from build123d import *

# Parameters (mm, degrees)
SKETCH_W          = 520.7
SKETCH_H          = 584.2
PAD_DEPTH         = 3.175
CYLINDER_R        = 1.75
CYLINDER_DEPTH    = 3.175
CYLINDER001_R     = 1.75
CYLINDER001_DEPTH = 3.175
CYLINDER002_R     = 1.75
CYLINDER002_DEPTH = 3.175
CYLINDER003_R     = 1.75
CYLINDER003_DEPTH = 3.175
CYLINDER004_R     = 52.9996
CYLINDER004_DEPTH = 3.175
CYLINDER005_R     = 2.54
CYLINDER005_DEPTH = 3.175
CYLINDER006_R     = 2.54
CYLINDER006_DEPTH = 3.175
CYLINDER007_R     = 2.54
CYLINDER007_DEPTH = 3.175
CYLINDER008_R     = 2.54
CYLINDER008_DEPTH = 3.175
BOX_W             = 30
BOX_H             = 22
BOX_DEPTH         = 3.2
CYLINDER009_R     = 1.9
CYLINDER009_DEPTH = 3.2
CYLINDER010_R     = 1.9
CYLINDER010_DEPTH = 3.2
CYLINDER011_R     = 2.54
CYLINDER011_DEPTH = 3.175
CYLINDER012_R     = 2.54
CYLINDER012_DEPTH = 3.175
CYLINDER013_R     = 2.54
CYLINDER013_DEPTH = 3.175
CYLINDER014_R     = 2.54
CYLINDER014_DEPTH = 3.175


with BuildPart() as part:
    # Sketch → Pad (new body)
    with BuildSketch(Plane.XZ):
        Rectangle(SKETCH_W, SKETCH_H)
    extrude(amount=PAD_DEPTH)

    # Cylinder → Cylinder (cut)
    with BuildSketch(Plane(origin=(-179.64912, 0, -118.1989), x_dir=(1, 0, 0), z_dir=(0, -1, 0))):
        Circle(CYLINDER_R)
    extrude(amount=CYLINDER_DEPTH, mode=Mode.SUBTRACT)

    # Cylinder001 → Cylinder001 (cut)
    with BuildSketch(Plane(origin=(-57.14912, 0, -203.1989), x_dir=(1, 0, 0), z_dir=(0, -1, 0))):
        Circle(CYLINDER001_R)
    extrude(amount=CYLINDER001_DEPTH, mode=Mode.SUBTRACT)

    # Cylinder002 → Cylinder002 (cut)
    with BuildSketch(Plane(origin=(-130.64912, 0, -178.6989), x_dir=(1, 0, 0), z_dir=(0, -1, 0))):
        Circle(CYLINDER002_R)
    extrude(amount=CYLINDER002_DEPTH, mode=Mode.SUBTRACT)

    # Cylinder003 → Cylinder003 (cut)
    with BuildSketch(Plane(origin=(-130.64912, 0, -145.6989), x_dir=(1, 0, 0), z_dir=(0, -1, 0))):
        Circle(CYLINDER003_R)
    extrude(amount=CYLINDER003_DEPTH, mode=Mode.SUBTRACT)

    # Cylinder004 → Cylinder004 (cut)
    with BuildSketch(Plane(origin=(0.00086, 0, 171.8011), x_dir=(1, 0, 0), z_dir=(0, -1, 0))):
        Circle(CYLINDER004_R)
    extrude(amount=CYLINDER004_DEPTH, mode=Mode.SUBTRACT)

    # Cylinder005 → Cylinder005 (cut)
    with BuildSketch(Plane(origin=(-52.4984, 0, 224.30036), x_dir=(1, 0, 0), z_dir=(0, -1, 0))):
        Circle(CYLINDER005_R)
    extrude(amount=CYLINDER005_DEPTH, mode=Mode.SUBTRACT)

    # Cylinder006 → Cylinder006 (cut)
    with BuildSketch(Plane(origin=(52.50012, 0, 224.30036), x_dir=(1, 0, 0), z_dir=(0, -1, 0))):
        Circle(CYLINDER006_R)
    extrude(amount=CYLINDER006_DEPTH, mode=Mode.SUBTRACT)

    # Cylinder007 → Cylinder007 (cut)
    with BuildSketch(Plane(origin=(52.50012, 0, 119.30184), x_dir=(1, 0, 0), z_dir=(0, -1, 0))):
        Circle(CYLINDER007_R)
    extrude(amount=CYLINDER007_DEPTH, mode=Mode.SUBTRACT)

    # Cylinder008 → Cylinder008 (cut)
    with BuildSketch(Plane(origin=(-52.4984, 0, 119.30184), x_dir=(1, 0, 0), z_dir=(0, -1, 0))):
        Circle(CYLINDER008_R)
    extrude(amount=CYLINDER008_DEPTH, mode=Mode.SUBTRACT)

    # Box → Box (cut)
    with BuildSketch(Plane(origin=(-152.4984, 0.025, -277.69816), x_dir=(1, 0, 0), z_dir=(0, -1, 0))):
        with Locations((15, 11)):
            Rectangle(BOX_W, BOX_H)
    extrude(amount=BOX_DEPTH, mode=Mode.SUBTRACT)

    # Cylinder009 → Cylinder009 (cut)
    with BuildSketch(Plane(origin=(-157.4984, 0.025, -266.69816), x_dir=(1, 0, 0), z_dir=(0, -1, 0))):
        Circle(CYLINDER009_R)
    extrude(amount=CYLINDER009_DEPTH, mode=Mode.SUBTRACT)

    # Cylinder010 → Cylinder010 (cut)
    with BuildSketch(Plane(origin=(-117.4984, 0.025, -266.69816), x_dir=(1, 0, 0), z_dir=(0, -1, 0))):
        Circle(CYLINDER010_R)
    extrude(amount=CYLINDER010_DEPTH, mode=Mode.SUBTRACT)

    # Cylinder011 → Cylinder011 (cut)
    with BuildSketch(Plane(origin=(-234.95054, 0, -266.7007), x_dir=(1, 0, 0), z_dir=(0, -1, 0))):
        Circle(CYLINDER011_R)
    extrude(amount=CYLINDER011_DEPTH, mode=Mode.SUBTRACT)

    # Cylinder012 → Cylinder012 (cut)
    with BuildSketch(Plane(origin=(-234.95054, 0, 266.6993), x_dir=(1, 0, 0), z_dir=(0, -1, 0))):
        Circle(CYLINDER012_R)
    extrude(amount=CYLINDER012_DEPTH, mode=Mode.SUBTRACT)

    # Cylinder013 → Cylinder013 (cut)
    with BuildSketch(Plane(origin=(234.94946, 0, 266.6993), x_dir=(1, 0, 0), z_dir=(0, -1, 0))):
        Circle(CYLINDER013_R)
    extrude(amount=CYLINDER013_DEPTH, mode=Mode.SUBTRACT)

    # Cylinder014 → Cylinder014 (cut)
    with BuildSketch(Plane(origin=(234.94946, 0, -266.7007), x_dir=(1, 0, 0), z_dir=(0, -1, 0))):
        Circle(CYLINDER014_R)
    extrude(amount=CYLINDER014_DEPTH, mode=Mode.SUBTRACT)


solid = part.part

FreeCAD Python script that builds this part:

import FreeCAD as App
import Part
import Sketcher
Q = App.Units.Quantity


def add_polygon(sketch, points):
    """Adds a closed chain of lines whose ends are joined by coincident constraints."""
    first, n = sketch.GeometryCount, len(points)
    for a, b in zip(points, points[1:] + points[:1]):
        sketch.addGeometry(Part.LineSegment(App.Vector(*a, 0), App.Vector(*b, 0)), False)
    for i in range(n):
        sketch.addConstraint(Sketcher.Constraint("Coincident", first + i, 2, first + (i + 1) % n, 1))

doc = App.newDocument("Part")
body = doc.addObject("PartDesign::Body", "Body")

# Sketch on XZ plane
sketch1 = body.newObject("Sketcher::SketchObject", "Sketch")
sketch1.AttachmentSupport = (doc.getObject("XZ_Plane"), [""])
sketch1.MapMode = "FlatFace"
add_polygon(sketch1, [(-260, 292), (-260, -292), (260, -292), (260, 292)])  # lines 0-3
sketch1.addConstraint(Sketcher.Constraint("Vertical", 0))
sketch1.addConstraint(Sketcher.Constraint("Horizontal", 1))
sketch1.addConstraint(Sketcher.Constraint("Vertical", 2))
sketch1.addConstraint(Sketcher.Constraint("Horizontal", 3))
sketch1.addConstraint(Sketcher.Constraint("Symmetric", 0, 2, 2, 2, -1, 1))
sketch1.addConstraint(Sketcher.Constraint("DistanceX", 1, 1, 1, 2, Q("520.7 mm")))
sketch1.addConstraint(Sketcher.Constraint("DistanceY", 0, 2, 0, 1, Q("584.2 mm")))
pad1 = body.newObject("PartDesign::Pad", "Pad")
pad1.Profile = sketch1
pad1.Length = 3.175

# Sketch on XZ plane
sketch2 = body.newObject("Sketcher::SketchObject", "Sketch001")
sketch2.AttachmentSupport = (doc.getObject("XZ_Plane"), [""])
sketch2.MapMode = "FlatFace"
sketch2.addGeometry(Part.Circle(App.Vector(-179.6, -118.2, 0), App.Vector(0, 0, 1), 1.8), False)
sketch2.addConstraint(Sketcher.Constraint("Diameter", 0, Q("3.5 mm")))
sketch2.addConstraint(Sketcher.Constraint("DistanceY", 0, 3, -1, 1, Q("118.1989 mm")))
sketch2.addConstraint(Sketcher.Constraint("DistanceX", 0, 3, -1, 1, Q("179.64912 mm")))
pocket1 = body.newObject("PartDesign::Pocket", "Pocket")
pocket1.Profile = sketch2
pocket1.Length = 3.175
pocket1.Reversed = True

# Sketch on XZ plane
sketch3 = body.newObject("Sketcher::SketchObject", "Sketch002")
sketch3.AttachmentSupport = (doc.getObject("XZ_Plane"), [""])
sketch3.MapMode = "FlatFace"
sketch3.addGeometry(Part.Circle(App.Vector(-57.1, -203.2, 0), App.Vector(0, 0, 1), 1.8), False)
sketch3.addConstraint(Sketcher.Constraint("Diameter", 0, Q("3.5 mm")))
sketch3.addConstraint(Sketcher.Constraint("DistanceY", 0, 3, -1, 1, Q("203.1989 mm")))
sketch3.addConstraint(Sketcher.Constraint("DistanceX", 0, 3, -1, 1, Q("57.14912 mm")))
pocket2 = body.newObject("PartDesign::Pocket", "Pocket001")
pocket2.Profile = sketch3
pocket2.Length = 3.175
pocket2.Reversed = True

# Sketch on XZ plane
sketch4 = body.newObject("Sketcher::SketchObject", "Sketch003")
sketch4.AttachmentSupport = (doc.getObject("XZ_Plane"), [""])
sketch4.MapMode = "FlatFace"
sketch4.addGeometry(Part.Circle(App.Vector(-130.6, -178.7, 0), App.Vector(0, 0, 1), 1.8), False)
sketch4.addConstraint(Sketcher.Constraint("Diameter", 0, Q("3.5 mm")))
sketch4.addConstraint(Sketcher.Constraint("DistanceY", 0, 3, -1, 1, Q("178.6989 mm")))
sketch4.addConstraint(Sketcher.Constraint("DistanceX", 0, 3, -1, 1, Q("130.64912 mm")))
pocket3 = body.newObject("PartDesign::Pocket", "Pocket002")
pocket3.Profile = sketch4
pocket3.Length = 3.175
pocket3.Reversed = True

# Sketch on XZ plane
sketch5 = body.newObject("Sketcher::SketchObject", "Sketch004")
sketch5.AttachmentSupport = (doc.getObject("XZ_Plane"), [""])
sketch5.MapMode = "FlatFace"
sketch5.addGeometry(Part.Circle(App.Vector(-130.6, -145.7, 0), App.Vector(0, 0, 1), 1.8), False)
sketch5.addConstraint(Sketcher.Constraint("Diameter", 0, Q("3.5 mm")))
sketch5.addConstraint(Sketcher.Constraint("DistanceY", 0, 3, -1, 1, Q("145.6989 mm")))
sketch5.addConstraint(Sketcher.Constraint("DistanceX", 0, 3, -1, 1, Q("130.64912 mm")))
pocket4 = body.newObject("PartDesign::Pocket", "Pocket003")
pocket4.Profile = sketch5
pocket4.Length = 3.175
pocket4.Reversed = True

# Sketch on XZ plane
sketch6 = body.newObject("Sketcher::SketchObject", "Sketch005")
sketch6.AttachmentSupport = (doc.getObject("XZ_Plane"), [""])
sketch6.MapMode = "FlatFace"
sketch6.addGeometry(Part.Circle(App.Vector(0, 172, 0), App.Vector(0, 0, 1), 53), False)
sketch6.addConstraint(Sketcher.Constraint("Diameter", 0, Q("105.9992 mm")))
sketch6.addConstraint(Sketcher.Constraint("DistanceY", -1, 1, 0, 3, Q("171.8011 mm")))
sketch6.addConstraint(Sketcher.Constraint("DistanceX", -1, 1, 0, 3, Q("0.00086 mm")))
pocket5 = body.newObject("PartDesign::Pocket", "Pocket004")
pocket5.Profile = sketch6
pocket5.Length = 3.175
pocket5.Reversed = True

# Sketch on XZ plane
sketch7 = body.newObject("Sketcher::SketchObject", "Sketch006")
sketch7.AttachmentSupport = (doc.getObject("XZ_Plane"), [""])
sketch7.MapMode = "FlatFace"
sketch7.addGeometry(Part.Circle(App.Vector(-52.4984, 224.30036, 0), App.Vector(0, 0, 1), 2.54), False)
sketch7.addConstraint(Sketcher.Constraint("Diameter", 0, Q("5.08 mm")))
sketch7.addConstraint(Sketcher.Constraint("DistanceX", 0, 3, -1, 1, Q("52.4984 mm")))
sketch7.addConstraint(Sketcher.Constraint("DistanceY", -1, 1, 0, 3, Q("224.30036 mm")))
pocket6 = body.newObject("PartDesign::Pocket", "Pocket005")
pocket6.Profile = sketch7
pocket6.Length = 3.175
pocket6.Reversed = True

# Sketch on XZ plane
sketch8 = body.newObject("Sketcher::SketchObject", "Sketch007")
sketch8.AttachmentSupport = (doc.getObject("XZ_Plane"), [""])
sketch8.MapMode = "FlatFace"
sketch8.addGeometry(Part.Circle(App.Vector(52.50012, 224.30036, 0), App.Vector(0, 0, 1), 2.54), False)
sketch8.addConstraint(Sketcher.Constraint("Diameter", 0, Q("5.08 mm")))
sketch8.addConstraint(Sketcher.Constraint("DistanceX", -1, 1, 0, 3, Q("52.50012 mm")))
sketch8.addConstraint(Sketcher.Constraint("DistanceY", -1, 1, 0, 3, Q("224.30036 mm")))
pocket7 = body.newObject("PartDesign::Pocket", "Pocket006")
pocket7.Profile = sketch8
pocket7.Length = 3.175
pocket7.Reversed = True

# Sketch on XZ plane
sketch9 = body.newObject("Sketcher::SketchObject", "Sketch008")
sketch9.AttachmentSupport = (doc.getObject("XZ_Plane"), [""])
sketch9.MapMode = "FlatFace"
sketch9.addGeometry(Part.Circle(App.Vector(52.5, 119.3, 0), App.Vector(0, 0, 1), 2.5), False)
sketch9.addConstraint(Sketcher.Constraint("Diameter", 0, Q("5.08 mm")))
sketch9.addConstraint(Sketcher.Constraint("DistanceX", -1, 1, 0, 3, Q("52.50012 mm")))
sketch9.addConstraint(Sketcher.Constraint("DistanceY", -1, 1, 0, 3, Q("119.30184 mm")))
pocket8 = body.newObject("PartDesign::Pocket", "Pocket007")
pocket8.Profile = sketch9
pocket8.Length = 3.175
pocket8.Reversed = True

# Sketch on XZ plane
sketch10 = body.newObject("Sketcher::SketchObject", "Sketch009")
sketch10.AttachmentSupport = (doc.getObject("XZ_Plane"), [""])
sketch10.MapMode = "FlatFace"
sketch10.addGeometry(Part.Circle(App.Vector(-52.5, 119.3, 0), App.Vector(0, 0, 1), 2.5), False)
sketch10.addConstraint(Sketcher.Constraint("Diameter", 0, Q("5.08 mm")))
sketch10.addConstraint(Sketcher.Constraint("DistanceX", 0, 3, -1, 1, Q("52.4984 mm")))
sketch10.addConstraint(Sketcher.Constraint("DistanceY", -1, 1, 0, 3, Q("119.30184 mm")))
pocket9 = body.newObject("PartDesign::Pocket", "Pocket008")
pocket9.Profile = sketch10
pocket9.Length = 3.175
pocket9.Reversed = True

# Sketch on XZ plane
sketch11 = body.newObject("Sketcher::SketchObject", "Sketch010")
sketch11.AttachmentSupport = (doc.getObject("XZ_Plane"), [""])
sketch11.MapMode = "FlatFace"
sketch11.AttachmentOffset = App.Placement(App.Vector(0, 0, -0.025), App.Rotation())
add_polygon(sketch11, [(-152, -256), (-152, -278), (-122, -278), (-122, -256)])  # lines 0-3
sketch11.addConstraint(Sketcher.Constraint("Vertical", 0))
sketch11.addConstraint(Sketcher.Constraint("Horizontal", 1))
sketch11.addConstraint(Sketcher.Constraint("Vertical", 2))
sketch11.addConstraint(Sketcher.Constraint("Horizontal", 3))
sketch11.addConstraint(Sketcher.Constraint("DistanceX", 1, 1, 1, 2, Q("30 mm")))
sketch11.addConstraint(Sketcher.Constraint("DistanceY", 0, 2, 0, 1, Q("22 mm")))
sketch11.addConstraint(Sketcher.Constraint("DistanceX", 0, 2, -1, 1, Q("152.4984 mm")))
sketch11.addConstraint(Sketcher.Constraint("DistanceY", 0, 2, -1, 1, Q("277.69816 mm")))
pocket10 = body.newObject("PartDesign::Pocket", "Pocket009")
pocket10.Profile = sketch11
pocket10.Length = 3.2
pocket10.Reversed = True

# Sketch on XZ plane
sketch12 = body.newObject("Sketcher::SketchObject", "Sketch011")
sketch12.AttachmentSupport = (doc.getObject("XZ_Plane"), [""])
sketch12.MapMode = "FlatFace"
sketch12.AttachmentOffset = App.Placement(App.Vector(0, 0, -0.025), App.Rotation())
sketch12.addGeometry(Part.Circle(App.Vector(-157.5, -266.7, 0), App.Vector(0, 0, 1), 1.9), False)
sketch12.addConstraint(Sketcher.Constraint("Diameter", 0, Q("3.8 mm")))
sketch12.addConstraint(Sketcher.Constraint("DistanceX", 0, 3, -1, 1, Q("157.4984 mm")))
sketch12.addConstraint(Sketcher.Constraint("DistanceY", 0, 3, -1, 1, Q("266.69816 mm")))
pocket11 = body.newObject("PartDesign::Pocket", "Pocket010")
pocket11.Profile = sketch12
pocket11.Length = 3.2
pocket11.Reversed = True

# Sketch on XZ plane
sketch13 = body.newObject("Sketcher::SketchObject", "Sketch012")
sketch13.AttachmentSupport = (doc.getObject("XZ_Plane"), [""])
sketch13.MapMode = "FlatFace"
sketch13.AttachmentOffset = App.Placement(App.Vector(0, 0, -0.025), App.Rotation())
sketch13.addGeometry(Part.Circle(App.Vector(-117.5, -266.7, 0), App.Vector(0, 0, 1), 1.9), False)
sketch13.addConstraint(Sketcher.Constraint("Diameter", 0, Q("3.8 mm")))
sketch13.addConstraint(Sketcher.Constraint("DistanceX", 0, 3, -1, 1, Q("117.4984 mm")))
sketch13.addConstraint(Sketcher.Constraint("DistanceY", 0, 3, -1, 1, Q("266.69816 mm")))
pocket12 = body.newObject("PartDesign::Pocket", "Pocket011")
pocket12.Profile = sketch13
pocket12.Length = 3.2
pocket12.Reversed = True

# Sketch on XZ plane
sketch14 = body.newObject("Sketcher::SketchObject", "Sketch013")
sketch14.AttachmentSupport = (doc.getObject("XZ_Plane"), [""])
sketch14.MapMode = "FlatFace"
sketch14.addGeometry(Part.Circle(App.Vector(-235, -266.7, 0), App.Vector(0, 0, 1), 2.5), False)
sketch14.addConstraint(Sketcher.Constraint("Diameter", 0, Q("5.08 mm")))
sketch14.addConstraint(Sketcher.Constraint("DistanceY", 0, 3, -1, 1, Q("266.7007 mm")))
sketch14.addConstraint(Sketcher.Constraint("DistanceX", 0, 3, -1, 1, Q("234.95054 mm")))
pocket13 = body.newObject("PartDesign::Pocket", "Pocket012")
pocket13.Profile = sketch14
pocket13.Length = 3.175
pocket13.Reversed = True

# Sketch on XZ plane
sketch15 = body.newObject("Sketcher::SketchObject", "Sketch014")
sketch15.AttachmentSupport = (doc.getObject("XZ_Plane"), [""])
sketch15.MapMode = "FlatFace"
sketch15.addGeometry(Part.Circle(App.Vector(-235, 266.7, 0), App.Vector(0, 0, 1), 2.5), False)
sketch15.addConstraint(Sketcher.Constraint("Diameter", 0, Q("5.08 mm")))
sketch15.addConstraint(Sketcher.Constraint("DistanceY", -1, 1, 0, 3, Q("266.6993 mm")))
sketch15.addConstraint(Sketcher.Constraint("DistanceX", 0, 3, -1, 1, Q("234.95054 mm")))
pocket14 = body.newObject("PartDesign::Pocket", "Pocket013")
pocket14.Profile = sketch15
pocket14.Length = 3.175
pocket14.Reversed = True

# Sketch on XZ plane
sketch16 = body.newObject("Sketcher::SketchObject", "Sketch015")
sketch16.AttachmentSupport = (doc.getObject("XZ_Plane"), [""])
sketch16.MapMode = "FlatFace"
sketch16.addGeometry(Part.Circle(App.Vector(234.9, 266.7, 0), App.Vector(0, 0, 1), 2.5), False)
sketch16.addConstraint(Sketcher.Constraint("Diameter", 0, Q("5.08 mm")))
sketch16.addConstraint(Sketcher.Constraint("DistanceY", -1, 1, 0, 3, Q("266.6993 mm")))
sketch16.addConstraint(Sketcher.Constraint("DistanceX", -1, 1, 0, 3, Q("234.94946 mm")))
pocket15 = body.newObject("PartDesign::Pocket", "Pocket014")
pocket15.Profile = sketch16
pocket15.Length = 3.175
pocket15.Reversed = True

# Sketch on XZ plane
sketch17 = body.newObject("Sketcher::SketchObject", "Sketch016")
sketch17.AttachmentSupport = (doc.getObject("XZ_Plane"), [""])
sketch17.MapMode = "FlatFace"
sketch17.addGeometry(Part.Circle(App.Vector(234.9, -266.7, 0), App.Vector(0, 0, 1), 2.5), False)
sketch17.addConstraint(Sketcher.Constraint("Diameter", 0, Q("5.08 mm")))
sketch17.addConstraint(Sketcher.Constraint("DistanceY", 0, 3, -1, 1, Q("266.7007 mm")))
sketch17.addConstraint(Sketcher.Constraint("DistanceX", -1, 1, 0, 3, Q("234.94946 mm")))
pocket16 = body.newObject("PartDesign::Pocket", "Pocket015")
pocket16.Profile = sketch17
pocket16.Length = 3.175
pocket16.Reversed = True

doc.recompute()
